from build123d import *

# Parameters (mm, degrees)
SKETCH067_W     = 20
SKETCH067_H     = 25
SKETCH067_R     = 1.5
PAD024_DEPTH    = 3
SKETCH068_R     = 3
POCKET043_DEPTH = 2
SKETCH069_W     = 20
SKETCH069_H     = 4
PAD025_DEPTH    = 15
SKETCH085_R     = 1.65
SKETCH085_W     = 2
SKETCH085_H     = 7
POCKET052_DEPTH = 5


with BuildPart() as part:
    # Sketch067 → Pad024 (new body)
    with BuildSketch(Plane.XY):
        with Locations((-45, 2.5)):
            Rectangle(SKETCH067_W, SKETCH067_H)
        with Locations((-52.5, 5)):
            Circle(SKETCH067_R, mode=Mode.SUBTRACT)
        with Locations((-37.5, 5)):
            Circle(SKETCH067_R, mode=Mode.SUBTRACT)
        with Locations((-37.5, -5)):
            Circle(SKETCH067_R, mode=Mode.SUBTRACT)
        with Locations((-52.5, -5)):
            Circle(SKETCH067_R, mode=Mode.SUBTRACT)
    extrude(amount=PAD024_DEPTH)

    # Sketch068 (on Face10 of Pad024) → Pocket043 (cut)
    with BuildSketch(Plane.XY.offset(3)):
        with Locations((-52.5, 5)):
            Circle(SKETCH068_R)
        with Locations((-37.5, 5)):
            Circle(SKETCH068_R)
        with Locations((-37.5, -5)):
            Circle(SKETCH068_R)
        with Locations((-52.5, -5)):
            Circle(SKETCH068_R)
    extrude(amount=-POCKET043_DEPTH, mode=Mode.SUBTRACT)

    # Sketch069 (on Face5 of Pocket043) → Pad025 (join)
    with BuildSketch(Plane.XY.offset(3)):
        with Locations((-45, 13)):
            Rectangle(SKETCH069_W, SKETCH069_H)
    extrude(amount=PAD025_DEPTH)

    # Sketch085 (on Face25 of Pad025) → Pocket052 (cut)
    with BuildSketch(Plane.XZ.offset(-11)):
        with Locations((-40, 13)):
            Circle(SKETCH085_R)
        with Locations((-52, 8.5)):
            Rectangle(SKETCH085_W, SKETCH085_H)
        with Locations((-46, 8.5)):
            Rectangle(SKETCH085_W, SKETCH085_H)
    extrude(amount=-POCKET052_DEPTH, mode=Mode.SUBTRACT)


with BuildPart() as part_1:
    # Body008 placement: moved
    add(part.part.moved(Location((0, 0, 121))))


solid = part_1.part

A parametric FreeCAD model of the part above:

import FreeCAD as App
import Part
import Sketcher
from FreeCAD import Vector
Q = App.Units.Quantity


def add_polygon(sketch, points):
    """Adds a closed chain of lines whose ends are joined by coincident constraints."""
    first, n = sketch.GeometryCount, len(points)
    for a, b in zip(points, points[1:] + points[:1]):
        sketch.addGeometry(Part.LineSegment(App.Vector(*a, 0), App.Vector(*b, 0)), False)
    for i in range(n):
        sketch.addConstraint(Sketcher.Constraint("Coincident", first + i, 2, first + (i + 1) % n, 1))

doc = App.newDocument("Part")
body = doc.addObject("PartDesign::Body", "Body")

# Sketch on XY plane
sketch1 = doc.addObject("Sketcher::SketchObject", "Sketch")
body.addObject(sketch1)
sketch1.AttachmentSupport = (doc.XY_Plane, [""])
sketch1.MapMode = "FlatFace"
add_polygon(sketch1, [(-55, 15), (-55, -10), (-35, -10), (-35, 15)])  # lines 0-3
sketch1.addGeometry(Part.Circle(Vector(-52.5, -5, 0), Vector(0, 0, 1), 1.5), False)  # 4
sketch1.addGeometry(Part.Circle(Vector(-37.5, -5, 0), Vector(0, 0, 1), 1.5), False)  # 5
sketch1.addGeometry(Part.Circle(Vector(-52.5, 5, 0), Vector(0, 0, 1), 1.5), False)  # 6
sketch1.addGeometry(Part.Circle(Vector(-37.5, 5, 0), Vector(0, 0, 1), 1.5), False)  # 7
sketch1.addConstraint([
    Sketcher.Constraint("Vertical", 0),
    Sketcher.Constraint("Horizontal", 1),
    Sketcher.Constraint("Vertical", 2),
    Sketcher.Constraint("Horizontal", 3),
    Sketcher.Constraint("Equal", 4, 5),
    Sketcher.Constraint("Equal", 5, 6),
    Sketcher.Constraint("Equal", 6, 7),
    Sketcher.Constraint("Symmetric", 4, 3, 6, 3, -1),
    Sketcher.Constraint("Symmetric", 5, 3, 7, 3, -1),
    Sketcher.Constraint("Horizontal", 4, 3, 5, 3),
    Sketcher.Constraint("Diameter", 4, Q("3 mm")),
    Sketcher.Constraint("DistanceX", 1, 1, 1, 2, Q("20 mm")),
    Sketcher.Constraint("DistanceY", 0, 2, 0, 1, Q("25 mm")),
    Sketcher.Constraint("DistanceY", 4, 3, -1, 1, Q("5 mm")),
    Sketcher.Constraint("DistanceX", 0, 2, -1, 1, Q("55 mm")),
    Sketcher.Constraint("DistanceY", 0, 2, -1, 1, Q("10 mm")),
    Sketcher.Constraint("DistanceX", 4, 3, 5, 3, Q("15 mm")),
    Sketcher.Constraint("DistanceX", 4, 3, -1, 1, Q("52.5 mm")),
])
pad1 = doc.addObject("PartDesign::Pad", "Pad")
body.addObject(pad1)
pad1.Profile = sketch1
pad1.Length = 3

# Sketch on XY plane
sketch2 = doc.addObject("Sketcher::SketchObject", "Sketch001")
body.addObject(sketch2)
sketch2.AttachmentSupport = (doc.XY_Plane, [""])
sketch2.MapMode = "FlatFace"
sketch2.AttachmentOffset = App.Placement(Vector(0, 0, 3), App.Rotation())
sketch2.addGeometry([
    Part.Circle(Vector(-52.5, 5, 0), Vector(0, 0, 1), 3),
    Part.Circle(Vector(-37.5, 5, 0), Vector(0, 0, 1), 3),
    Part.Circle(Vector(-37.5, -5, 0), Vector(0, 0, 1), 3),
    Part.Circle(Vector(-52.5, -5, 0), Vector(0, 0, 1), 3),
], False)
sketch2.addConstraint([
    Sketcher.Constraint("Equal", 0, 1),
    Sketcher.Constraint("Equal", 1, 2),
    Sketcher.Constraint("Equal", 2, 3),
    Sketcher.Constraint("Symmetric", 1, 3, 2, 3, -1),
    Sketcher.Constraint("Symmetric", 0, 3, 3, 3, -1),
    Sketcher.Constraint("Horizontal", 0, 3, 1, 3),
    Sketcher.Constraint("Diameter", 0, Q("6 mm")),
    Sketcher.Constraint("DistanceY", -1, 1, 0, 3, Q("5 mm")),
    Sketcher.Constraint("DistanceX", 0, 3, 1, 3, Q("15 mm")),
    Sketcher.Constraint("DistanceX", 0, 3, -1, 1, Q("52.5 mm")),
])
pocket1 = doc.addObject("PartDesign::Pocket", "Pocket")
body.addObject(pocket1)
pocket1.Profile = sketch2
pocket1.Length = 2

# Sketch on XY plane
sketch3 = doc.addObject("Sketcher::SketchObject", "Sketch002")
body.addObject(sketch3)
sketch3.AttachmentSupport = (doc.XY_Plane, [""])
sketch3.MapMode = "FlatFace"
sketch3.AttachmentOffset = App.Placement(Vector(0, 0, 3), App.Rotation())
add_polygon(sketch3, [(-55, 15), (-55, 11), (-35, 11), (-35, 15)])  # lines 0-3
sketch3.addConstraint([
    Sketcher.Constraint("Vertical", 0),
    Sketcher.Constraint("Horizontal", 1),
    Sketcher.Constraint("Vertical", 2),
    Sketcher.Constraint("Horizontal", 3),
    Sketcher.Constraint("DistanceX", 1, 1, 1, 2, Q("20 mm")),
    Sketcher.Constraint("DistanceY", 0, 2, 0, 1, Q("4 mm")),
    Sketcher.Constraint("DistanceX", 0, 2, -1, 1, Q("55 mm")),
    Sketcher.Constraint("DistanceY", -1, 1, 0, 2, Q("11 mm")),
])
pad2 = doc.addObject("PartDesign::Pad", "Pad001")
body.addObject(pad2)
pad2.Profile = sketch3
pad2.Length = 15

# Sketch on XZ plane
sketch4 = doc.addObject("Sketcher::SketchObject", "Sketch003")
body.addObject(sketch4)
sketch4.AttachmentSupport = (doc.XZ_Plane, [""])
sketch4.MapMode = "FlatFace"
sketch4.AttachmentOffset = App.Placement(Vector(0, 0, -11), App.Rotation())
sketch4.addGeometry(Part.Circle(Vector(-40, 13, 0), Vector(0, 0, 1), 1.65), False)  # 0
add_polygon(sketch4, [(-53, 12), (-53, 5), (-51, 5), (-51, 12)])  # lines 1-4
add_polygon(sketch4, [(-47, 12), (-47, 5), (-45, 5), (-45, 12)])  # lines 5-8
sketch4.addConstraint([
    Sketcher.Constraint("Vertical", 1),
    Sketcher.Constraint("Horizontal", 2),
    Sketcher.Constraint("Vertical", 3),
    Sketcher.Constraint("Horizontal", 4),
    Sketcher.Constraint("Vertical", 5),
    Sketcher.Constraint("Horizontal", 6),
    Sketcher.Constraint("Vertical", 7),
    Sketcher.Constraint("Horizontal", 8),
    Sketcher.Constraint("Horizontal", 2, 2, 5, 2),
    Sketcher.Constraint("Horizontal", 4, 2, 7, 2),
    Sketcher.Constraint("Equal", 4, 6),
    Sketcher.Constraint("Diameter", 0, Q("3.3 mm")),
    Sketcher.Constraint("DistanceX", 2, 1, 2, 2, Q("2 mm")),
    Sketcher.Constraint("DistanceY", 1, 2, 1, 1, Q("7 mm")),
    Sketcher.Constraint("DistanceX", 0, 3, -1, 1, Q("40 mm")),
    Sketcher.Constraint("DistanceY", -1, 1, 0, 3, Q("13 mm")),
    Sketcher.Constraint("DistanceX", 1, 2, -1, 1, Q("53 mm")),
    Sketcher.Constraint("DistanceY", -1, 1, 1, 2, Q("5 mm")),
    Sketcher.Constraint("DistanceX", 5, 2, -1, 1, Q("47 mm")),
])
pocket2 = doc.addObject("PartDesign::Pocket", "Pocket001")
body.addObject(pocket2)
pocket2.Profile = sketch4
pocket2.Length = 5
body2 = doc.addObject("PartDesign::Body", "Body001")
doc.recompute()

body.Placement = App.Placement(Vector(0, 0, 121), App.Rotation(Vector(0, 0, 1), 0))
boolean = doc.addObject("PartDesign::Boolean", "Boolean")
body2.addObject(boolean)
boolean.Type = "Fuse"
boolean.addObjects([body])

doc.recompute()
